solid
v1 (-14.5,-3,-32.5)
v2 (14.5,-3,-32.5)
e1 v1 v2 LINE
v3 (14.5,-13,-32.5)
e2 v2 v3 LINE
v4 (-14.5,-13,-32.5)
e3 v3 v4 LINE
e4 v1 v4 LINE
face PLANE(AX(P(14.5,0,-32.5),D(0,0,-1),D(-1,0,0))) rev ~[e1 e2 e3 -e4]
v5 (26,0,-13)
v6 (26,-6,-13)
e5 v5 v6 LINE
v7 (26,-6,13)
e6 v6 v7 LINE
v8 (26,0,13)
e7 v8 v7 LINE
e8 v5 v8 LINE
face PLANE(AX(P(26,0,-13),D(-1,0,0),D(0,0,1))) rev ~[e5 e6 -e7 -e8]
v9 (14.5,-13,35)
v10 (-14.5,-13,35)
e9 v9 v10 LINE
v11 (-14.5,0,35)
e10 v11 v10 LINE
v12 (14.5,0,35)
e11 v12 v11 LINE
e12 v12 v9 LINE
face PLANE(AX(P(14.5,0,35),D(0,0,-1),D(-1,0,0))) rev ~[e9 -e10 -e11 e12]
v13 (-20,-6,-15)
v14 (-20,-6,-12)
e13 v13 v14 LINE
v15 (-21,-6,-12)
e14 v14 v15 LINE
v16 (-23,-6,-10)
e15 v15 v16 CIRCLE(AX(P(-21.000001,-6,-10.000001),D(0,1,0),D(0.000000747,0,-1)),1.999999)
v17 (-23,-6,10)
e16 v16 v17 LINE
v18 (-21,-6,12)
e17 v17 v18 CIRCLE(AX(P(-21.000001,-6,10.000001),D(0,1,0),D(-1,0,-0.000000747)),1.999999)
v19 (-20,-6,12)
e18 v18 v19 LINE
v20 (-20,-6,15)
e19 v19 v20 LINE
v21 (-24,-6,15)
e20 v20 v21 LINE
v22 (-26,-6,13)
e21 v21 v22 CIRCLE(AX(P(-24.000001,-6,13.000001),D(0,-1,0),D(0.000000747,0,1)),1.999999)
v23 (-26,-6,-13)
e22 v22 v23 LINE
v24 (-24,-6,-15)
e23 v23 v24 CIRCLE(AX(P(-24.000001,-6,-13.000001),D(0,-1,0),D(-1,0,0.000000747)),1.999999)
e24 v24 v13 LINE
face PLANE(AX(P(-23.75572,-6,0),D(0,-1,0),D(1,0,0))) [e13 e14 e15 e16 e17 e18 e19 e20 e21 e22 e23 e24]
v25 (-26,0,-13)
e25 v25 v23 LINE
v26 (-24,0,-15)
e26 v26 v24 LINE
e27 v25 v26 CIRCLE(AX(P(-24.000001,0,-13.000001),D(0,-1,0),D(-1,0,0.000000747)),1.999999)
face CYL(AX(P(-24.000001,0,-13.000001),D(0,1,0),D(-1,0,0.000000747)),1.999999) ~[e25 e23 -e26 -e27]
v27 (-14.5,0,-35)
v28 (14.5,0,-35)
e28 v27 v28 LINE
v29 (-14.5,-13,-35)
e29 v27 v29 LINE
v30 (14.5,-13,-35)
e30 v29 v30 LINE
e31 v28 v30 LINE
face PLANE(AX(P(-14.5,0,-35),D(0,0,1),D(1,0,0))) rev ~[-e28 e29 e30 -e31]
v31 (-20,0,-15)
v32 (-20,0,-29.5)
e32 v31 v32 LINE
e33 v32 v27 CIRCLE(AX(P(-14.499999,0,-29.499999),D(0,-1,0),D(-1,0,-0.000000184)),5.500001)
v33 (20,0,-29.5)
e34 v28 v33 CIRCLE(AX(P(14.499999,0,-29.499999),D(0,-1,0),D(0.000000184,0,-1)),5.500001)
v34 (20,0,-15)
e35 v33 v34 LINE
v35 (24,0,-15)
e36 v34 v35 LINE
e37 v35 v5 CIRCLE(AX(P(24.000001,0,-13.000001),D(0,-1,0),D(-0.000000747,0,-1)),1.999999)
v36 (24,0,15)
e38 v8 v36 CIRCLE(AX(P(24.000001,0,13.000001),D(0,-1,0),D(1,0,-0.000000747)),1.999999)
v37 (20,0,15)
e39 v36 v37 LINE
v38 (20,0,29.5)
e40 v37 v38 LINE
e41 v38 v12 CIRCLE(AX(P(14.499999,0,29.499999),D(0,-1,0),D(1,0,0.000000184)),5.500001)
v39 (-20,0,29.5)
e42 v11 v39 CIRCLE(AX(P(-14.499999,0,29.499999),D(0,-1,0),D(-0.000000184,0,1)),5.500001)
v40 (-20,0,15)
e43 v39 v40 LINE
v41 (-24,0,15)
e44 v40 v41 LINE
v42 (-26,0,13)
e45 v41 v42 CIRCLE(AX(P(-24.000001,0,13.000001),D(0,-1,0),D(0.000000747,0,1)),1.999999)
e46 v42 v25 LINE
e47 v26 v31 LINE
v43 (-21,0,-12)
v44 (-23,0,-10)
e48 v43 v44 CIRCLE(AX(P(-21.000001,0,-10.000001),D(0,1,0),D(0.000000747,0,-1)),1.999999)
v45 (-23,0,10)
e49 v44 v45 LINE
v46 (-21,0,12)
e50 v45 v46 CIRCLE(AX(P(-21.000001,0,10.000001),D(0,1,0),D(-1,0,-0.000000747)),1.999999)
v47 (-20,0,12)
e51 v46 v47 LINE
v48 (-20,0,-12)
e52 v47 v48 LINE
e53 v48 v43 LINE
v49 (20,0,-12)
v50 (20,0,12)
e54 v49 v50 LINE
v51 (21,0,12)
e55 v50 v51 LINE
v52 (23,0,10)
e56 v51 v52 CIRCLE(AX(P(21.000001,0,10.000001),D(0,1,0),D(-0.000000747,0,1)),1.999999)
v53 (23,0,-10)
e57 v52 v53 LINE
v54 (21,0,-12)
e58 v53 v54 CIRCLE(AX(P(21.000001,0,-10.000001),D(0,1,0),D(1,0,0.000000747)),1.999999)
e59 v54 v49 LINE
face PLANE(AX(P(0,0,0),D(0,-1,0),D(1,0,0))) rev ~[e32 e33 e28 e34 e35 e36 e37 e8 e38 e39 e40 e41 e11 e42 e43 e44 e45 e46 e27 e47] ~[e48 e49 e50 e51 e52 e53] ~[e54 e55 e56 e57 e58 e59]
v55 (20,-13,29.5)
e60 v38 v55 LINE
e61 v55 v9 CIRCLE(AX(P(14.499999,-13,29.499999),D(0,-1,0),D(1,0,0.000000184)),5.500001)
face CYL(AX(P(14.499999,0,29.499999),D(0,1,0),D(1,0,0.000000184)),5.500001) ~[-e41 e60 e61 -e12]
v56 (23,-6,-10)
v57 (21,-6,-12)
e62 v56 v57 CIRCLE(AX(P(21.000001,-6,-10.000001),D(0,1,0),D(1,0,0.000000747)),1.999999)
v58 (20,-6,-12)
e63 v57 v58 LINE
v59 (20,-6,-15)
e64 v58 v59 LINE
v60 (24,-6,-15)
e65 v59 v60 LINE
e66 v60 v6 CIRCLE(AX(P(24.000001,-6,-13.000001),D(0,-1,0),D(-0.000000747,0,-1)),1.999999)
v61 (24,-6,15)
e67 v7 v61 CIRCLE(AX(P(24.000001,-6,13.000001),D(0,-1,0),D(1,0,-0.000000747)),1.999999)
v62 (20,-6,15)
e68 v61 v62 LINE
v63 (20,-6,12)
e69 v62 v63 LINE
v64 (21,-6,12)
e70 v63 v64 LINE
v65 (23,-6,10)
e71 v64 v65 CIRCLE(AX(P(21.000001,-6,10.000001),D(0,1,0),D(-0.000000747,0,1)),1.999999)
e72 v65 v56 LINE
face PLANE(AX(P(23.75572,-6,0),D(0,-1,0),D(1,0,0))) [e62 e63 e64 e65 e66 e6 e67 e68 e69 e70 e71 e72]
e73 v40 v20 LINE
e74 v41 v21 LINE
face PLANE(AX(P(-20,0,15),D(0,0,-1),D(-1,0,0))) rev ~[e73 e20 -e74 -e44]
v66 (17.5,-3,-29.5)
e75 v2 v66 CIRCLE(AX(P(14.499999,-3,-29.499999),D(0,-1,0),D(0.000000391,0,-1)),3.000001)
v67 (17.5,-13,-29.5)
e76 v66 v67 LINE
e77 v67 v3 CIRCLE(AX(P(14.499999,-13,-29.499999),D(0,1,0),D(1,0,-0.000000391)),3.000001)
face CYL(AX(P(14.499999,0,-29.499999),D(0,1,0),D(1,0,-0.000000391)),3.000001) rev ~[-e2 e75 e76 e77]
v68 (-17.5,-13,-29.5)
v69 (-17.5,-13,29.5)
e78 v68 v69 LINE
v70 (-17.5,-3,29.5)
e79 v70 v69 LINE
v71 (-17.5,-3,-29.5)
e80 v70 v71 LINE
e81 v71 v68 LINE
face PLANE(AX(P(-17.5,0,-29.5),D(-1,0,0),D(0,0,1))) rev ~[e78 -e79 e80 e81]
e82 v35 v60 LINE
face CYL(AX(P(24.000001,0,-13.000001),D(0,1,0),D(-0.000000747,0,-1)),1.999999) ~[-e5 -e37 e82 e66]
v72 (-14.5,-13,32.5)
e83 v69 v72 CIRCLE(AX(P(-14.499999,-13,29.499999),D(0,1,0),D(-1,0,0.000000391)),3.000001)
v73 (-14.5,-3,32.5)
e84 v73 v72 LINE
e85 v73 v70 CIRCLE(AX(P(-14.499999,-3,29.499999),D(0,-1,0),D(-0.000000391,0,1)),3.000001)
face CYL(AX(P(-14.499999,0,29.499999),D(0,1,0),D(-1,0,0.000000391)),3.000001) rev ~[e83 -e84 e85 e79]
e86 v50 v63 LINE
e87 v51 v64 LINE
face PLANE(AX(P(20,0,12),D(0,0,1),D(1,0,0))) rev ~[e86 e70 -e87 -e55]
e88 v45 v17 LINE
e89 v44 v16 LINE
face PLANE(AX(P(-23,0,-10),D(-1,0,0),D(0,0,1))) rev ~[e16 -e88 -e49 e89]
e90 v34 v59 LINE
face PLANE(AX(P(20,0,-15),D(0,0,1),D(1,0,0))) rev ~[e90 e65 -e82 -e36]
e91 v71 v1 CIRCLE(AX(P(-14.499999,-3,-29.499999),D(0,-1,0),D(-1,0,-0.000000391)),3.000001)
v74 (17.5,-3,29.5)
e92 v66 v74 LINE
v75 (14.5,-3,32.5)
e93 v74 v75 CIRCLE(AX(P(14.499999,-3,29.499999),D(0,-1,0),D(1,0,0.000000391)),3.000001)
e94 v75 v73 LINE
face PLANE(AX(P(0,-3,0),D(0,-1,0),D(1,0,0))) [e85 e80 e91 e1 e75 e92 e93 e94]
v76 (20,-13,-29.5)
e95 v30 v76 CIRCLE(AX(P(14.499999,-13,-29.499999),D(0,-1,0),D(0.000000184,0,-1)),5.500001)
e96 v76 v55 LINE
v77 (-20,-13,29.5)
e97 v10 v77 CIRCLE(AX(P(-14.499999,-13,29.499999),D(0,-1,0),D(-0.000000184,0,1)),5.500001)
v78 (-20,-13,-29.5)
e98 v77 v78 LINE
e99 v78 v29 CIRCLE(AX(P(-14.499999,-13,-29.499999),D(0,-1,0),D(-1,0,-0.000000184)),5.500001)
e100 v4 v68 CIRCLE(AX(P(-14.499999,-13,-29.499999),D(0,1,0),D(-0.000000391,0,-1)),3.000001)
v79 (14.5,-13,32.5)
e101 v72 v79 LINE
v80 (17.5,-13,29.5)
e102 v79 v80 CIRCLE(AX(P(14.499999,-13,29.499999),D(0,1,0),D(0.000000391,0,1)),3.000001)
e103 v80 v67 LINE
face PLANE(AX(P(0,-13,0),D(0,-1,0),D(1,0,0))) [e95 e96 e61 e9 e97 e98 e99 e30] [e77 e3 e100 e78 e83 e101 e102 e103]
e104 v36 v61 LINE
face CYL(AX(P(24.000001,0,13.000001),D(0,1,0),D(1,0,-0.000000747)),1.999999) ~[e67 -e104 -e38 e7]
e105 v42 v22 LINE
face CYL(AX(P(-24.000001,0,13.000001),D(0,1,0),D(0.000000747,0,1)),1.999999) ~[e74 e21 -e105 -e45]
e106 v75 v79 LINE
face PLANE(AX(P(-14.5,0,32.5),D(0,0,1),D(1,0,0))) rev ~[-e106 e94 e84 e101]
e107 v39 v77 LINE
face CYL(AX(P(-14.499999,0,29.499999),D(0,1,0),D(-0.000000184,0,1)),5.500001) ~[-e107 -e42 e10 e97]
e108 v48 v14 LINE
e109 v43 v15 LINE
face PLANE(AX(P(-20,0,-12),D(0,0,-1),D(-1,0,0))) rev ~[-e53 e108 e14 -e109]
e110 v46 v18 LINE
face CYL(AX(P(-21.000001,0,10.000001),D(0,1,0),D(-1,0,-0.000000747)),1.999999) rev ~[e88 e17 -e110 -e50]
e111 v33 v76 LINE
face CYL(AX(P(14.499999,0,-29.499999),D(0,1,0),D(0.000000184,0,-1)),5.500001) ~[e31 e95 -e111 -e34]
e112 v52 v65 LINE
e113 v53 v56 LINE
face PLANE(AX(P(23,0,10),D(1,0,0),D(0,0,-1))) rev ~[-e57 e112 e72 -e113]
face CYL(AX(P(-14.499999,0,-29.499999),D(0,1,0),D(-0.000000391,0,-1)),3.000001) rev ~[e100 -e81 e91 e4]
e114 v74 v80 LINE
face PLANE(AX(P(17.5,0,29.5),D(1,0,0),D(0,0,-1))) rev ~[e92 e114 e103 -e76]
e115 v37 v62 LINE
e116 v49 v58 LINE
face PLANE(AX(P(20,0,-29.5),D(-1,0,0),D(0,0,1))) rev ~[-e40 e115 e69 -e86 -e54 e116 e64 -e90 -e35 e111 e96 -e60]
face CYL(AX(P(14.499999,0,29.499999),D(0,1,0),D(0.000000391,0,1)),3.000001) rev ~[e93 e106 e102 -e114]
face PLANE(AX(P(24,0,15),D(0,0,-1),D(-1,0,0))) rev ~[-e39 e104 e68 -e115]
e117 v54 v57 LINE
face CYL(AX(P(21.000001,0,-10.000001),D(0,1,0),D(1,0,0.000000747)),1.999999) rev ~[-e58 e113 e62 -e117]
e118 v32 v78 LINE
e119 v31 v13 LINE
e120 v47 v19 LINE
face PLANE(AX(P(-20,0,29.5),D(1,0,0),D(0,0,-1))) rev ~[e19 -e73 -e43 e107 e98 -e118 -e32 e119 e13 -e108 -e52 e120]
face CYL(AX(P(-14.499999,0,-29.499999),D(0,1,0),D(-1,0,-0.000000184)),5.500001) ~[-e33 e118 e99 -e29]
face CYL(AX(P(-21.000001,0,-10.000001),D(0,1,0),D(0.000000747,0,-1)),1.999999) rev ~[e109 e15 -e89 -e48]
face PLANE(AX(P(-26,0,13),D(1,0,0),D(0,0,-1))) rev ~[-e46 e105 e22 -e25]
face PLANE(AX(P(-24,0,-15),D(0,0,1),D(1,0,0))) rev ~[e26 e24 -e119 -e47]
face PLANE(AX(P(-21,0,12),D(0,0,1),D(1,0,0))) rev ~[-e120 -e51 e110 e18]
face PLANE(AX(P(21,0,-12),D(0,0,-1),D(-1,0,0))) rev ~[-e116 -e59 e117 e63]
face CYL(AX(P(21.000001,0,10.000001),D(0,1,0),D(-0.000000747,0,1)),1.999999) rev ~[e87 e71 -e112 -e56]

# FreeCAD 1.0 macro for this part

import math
import FreeCAD as App
import Part
import Sketcher

V = App.Vector
Q = App.Units.Quantity

doc = App.newDocument("Part")
params = doc.addObject("Spreadsheet::Sheet", "Params")
for row, (alias, value) in enumerate([
    ("sketch1_radius", "3.000001 mm"),
    ("sketch1_width", "29 mm"),
    ("sketch1_height", "59 mm"),
    ("pad1_length", "3 mm"),
    ("sketch2_radius", "3.000001 mm"),
    ("sketch2_radius2", "5.500001 mm"),
    ("sketch2_width", "29 mm"),
    ("sketch2_height", "59 mm"),
    ("pad2_length", "13 mm"),
    ("sketch3_radius", "1.999999 mm"),
    ("sketch3_width", "4 mm"),
    ("sketch3_width2", "1 mm"),
    ("sketch3_height", "3 mm"),
    ("sketch3_height2", "26 mm"),
    ("pad3_length", "6 mm"),
], start=1):
    params.set(f"A{row}", alias)
    params.set(f"B{row}", "=" + value)
    params.setAlias(f"B{row}", alias)

body = doc.addObject("PartDesign::Body", "Body")

sketch1 = body.newObject("Sketcher::SketchObject", "Sketch")
sketch1.AttachmentSupport = (doc.getObject("XZ_Plane"), [""])
sketch1.MapMode = "FlatFace"
sketch1.addGeometry([
    Part.LineSegment(V(-14.5, -32.5, 0), V(14.5, -32.5, 0)),
    Part.ArcOfCircle(Part.Circle(V(14.499999, -29.499999, 0), V(0, 0, 1), 3.000001), math.radians(-89.999978), math.radians(-0.000022)),
    Part.LineSegment(V(17.5, -29.5, 0), V(17.5, 29.5, 0)),
    Part.ArcOfCircle(Part.Circle(V(14.499999, 29.499999, 0), V(0, 0, 1), 3.000001), math.radians(0.000022), math.radians(89.999978)),
    Part.LineSegment(V(14.5, 32.5, 0), V(-14.5, 32.5, 0)),
    Part.ArcOfCircle(Part.Circle(V(-14.499999, 29.499999, 0), V(0, 0, 1), 3.000001), math.radians(90.000022), math.radians(179.999978)),
    Part.LineSegment(V(-17.5, 29.5, 0), V(-17.5, -29.5, 0)),
    Part.ArcOfCircle(Part.Circle(V(-14.499999, -29.499999, 0), V(0, 0, 1), 3.000001), math.radians(-179.999978), math.radians(-90.000022)),
], False)
sketch1.addConstraint([
    Sketcher.Constraint("Tangent", 0, 2, 1, 1),
    Sketcher.Constraint("Tangent", 1, 2, 2, 1),
    Sketcher.Constraint("Tangent", 2, 2, 3, 1),
    Sketcher.Constraint("Tangent", 3, 2, 4, 1),
    Sketcher.Constraint("Tangent", 4, 2, 5, 1),
    Sketcher.Constraint("Tangent", 5, 2, 6, 1),
    Sketcher.Constraint("Tangent", 6, 2, 7, 1),
    Sketcher.Constraint("Tangent", 7, 2, 0, 1),
    Sketcher.Constraint("Horizontal", 0),
    Sketcher.Constraint("Vertical", 2),
    Sketcher.Constraint("Horizontal", 4),
    Sketcher.Constraint("Vertical", 6),
    Sketcher.Constraint("Equal", 1, 3),
    Sketcher.Constraint("Equal", 3, 5),
    Sketcher.Constraint("Equal", 5, 7),
    Sketcher.Constraint("Symmetric", 1, 3, 5, 3, -1, 1),
    Sketcher.Constraint("Radius", 1, Q("3.000001 mm")),
    Sketcher.Constraint("DistanceX", 0, 1, 0, 2, Q("29 mm")),
    Sketcher.Constraint("DistanceY", 2, 1, 2, 2, Q("59 mm")),
])
sketch1.setExpression("Constraints[16]", "Params.sketch1_radius")
sketch1.setExpression("Constraints[17]", "Params.sketch1_width")
sketch1.setExpression("Constraints[18]", "Params.sketch1_height")
pad1 = body.newObject("PartDesign::Pad", "Pad")
pad1.Profile = sketch1
pad1.setExpression("Length", "Params.pad1_length")

sketch2 = body.newObject("Sketcher::SketchObject", "Sketch001")
sketch2.AttachmentSupport = (doc.getObject("XZ_Plane"), [""])
sketch2.MapMode = "FlatFace"
sketch2.addGeometry([
    Part.LineSegment(V(14.5, 35, 0), V(-14.5, 35, 0)),
    Part.ArcOfCircle(Part.Circle(V(-14.499999, 29.499999, 0), V(0, 0, 1), 5.500001), math.radians(90.000011), math.radians(179.999989)),
    Part.LineSegment(V(-20, 29.5, 0), V(-20, -29.5, 0)),
    Part.ArcOfCircle(Part.Circle(V(-14.499999, -29.499999, 0), V(0, 0, 1), 5.500001), math.radians(-179.999989), math.radians(-90.000011)),
    Part.LineSegment(V(-14.5, -35, 0), V(14.5, -35, 0)),
    Part.ArcOfCircle(Part.Circle(V(14.499999, -29.499999, 0), V(0, 0, 1), 5.500001), math.radians(-89.999989), math.radians(-0.000011)),
    Part.LineSegment(V(20, -29.5, 0), V(20, 29.5, 0)),
    Part.ArcOfCircle(Part.Circle(V(14.499999, 29.499999, 0), V(0, 0, 1), 5.500001), math.radians(0.000011), math.radians(89.999989)),
    Part.LineSegment(V(17.5, 29.5, 0), V(17.5, -29.5, 0)),
    Part.ArcOfCircle(Part.Circle(V(14.499999, -29.499999, 0), V(0, 0, 1), 3.000001), math.radians(-89.999978), math.radians(-0.000022)),
    Part.LineSegment(V(14.5, -32.5, 0), V(-14.5, -32.5, 0)),
    Part.ArcOfCircle(Part.Circle(V(-14.499999, -29.499999, 0), V(0, 0, 1), 3.000001), math.radians(-179.999978), math.radians(-90.000022)),
    Part.LineSegment(V(-17.5, -29.5, 0), V(-17.5, 29.5, 0)),
    Part.ArcOfCircle(Part.Circle(V(-14.499999, 29.499999, 0), V(0, 0, 1), 3.000001), math.radians(90.000022), math.radians(179.999978)),
    Part.LineSegment(V(-14.5, 32.5, 0), V(14.5, 32.5, 0)),
    Part.ArcOfCircle(Part.Circle(V(14.499999, 29.499999, 0), V(0, 0, 1), 3.000001), math.radians(0.000022), math.radians(89.999978)),
], False)
sketch2.addConstraint([
    Sketcher.Constraint("Tangent", 0, 2, 1, 1),
    Sketcher.Constraint("Tangent", 1, 2, 2, 1),
    Sketcher.Constraint("Tangent", 2, 2, 3, 1),
    Sketcher.Constraint("Tangent", 3, 2, 4, 1),
    Sketcher.Constraint("Tangent", 4, 2, 5, 1),
    Sketcher.Constraint("Tangent", 5, 2, 6, 1),
    Sketcher.Constraint("Tangent", 6, 2, 7, 1),
    Sketcher.Constraint("Tangent", 7, 2, 0, 1),
    Sketcher.Constraint("Tangent", 8, 2, 9, 2),
    Sketcher.Constraint("Tangent", 9, 1, 10, 1),
    Sketcher.Constraint("Tangent", 10, 2, 11, 2),
    Sketcher.Constraint("Tangent", 11, 1, 12, 1),
    Sketcher.Constraint("Tangent", 12, 2, 13, 2),
    Sketcher.Constraint("Tangent", 13, 1, 14, 1),
    Sketcher.Constraint("Tangent", 14, 2, 15, 2),
    Sketcher.Constraint("Tangent", 15, 1, 8, 1),
    Sketcher.Constraint("Horizontal", 0),
    Sketcher.Constraint("Vertical", 2),
    Sketcher.Constraint("Horizontal", 4),
    Sketcher.Constraint("Vertical", 6),
    Sketcher.Constraint("Vertical", 8),
    Sketcher.Constraint("Horizontal", 10),
    Sketcher.Constraint("Vertical", 12),
    Sketcher.Constraint("Horizontal", 14),
    Sketcher.Constraint("Coincident", 9, 3, 5, 3),
    Sketcher.Constraint("Coincident", 11, 3, 3, 3),
    Sketcher.Constraint("Coincident", 13, 3, 1, 3),
    Sketcher.Constraint("Equal", 1, 3),
    Sketcher.Constraint("Equal", 3, 5),
    Sketcher.Constraint("Equal", 5, 7),
    Sketcher.Constraint("Equal", 13, 15),
    Sketcher.Constraint("Symmetric", 1, 3, 5, 3, -1, 1),
    Sketcher.Constraint("Radius", 9, Q("3.000001 mm")),
    Sketcher.Constraint("Radius", 1, Q("5.500001 mm")),
    Sketcher.Constraint("DistanceX", 0, 2, 0, 1, Q("29 mm")),
    Sketcher.Constraint("DistanceY", 2, 2, 2, 1, Q("59 mm")),
])
sketch2.setExpression("Constraints[32]", "Params.sketch2_radius")
sketch2.setExpression("Constraints[33]", "Params.sketch2_radius2")
sketch2.setExpression("Constraints[34]", "Params.sketch2_width")
sketch2.setExpression("Constraints[35]", "Params.sketch2_height")
pad2 = body.newObject("PartDesign::Pad", "Pad001")
pad2.Profile = sketch2
pad2.setExpression("Length", "Params.pad2_length")

sketch3 = body.newObject("Sketcher::SketchObject", "Sketch002")
sketch3.AttachmentSupport = (doc.getObject("XZ_Plane"), [""])
sketch3.MapMode = "FlatFace"
sketch3.addGeometry([
    Part.LineSegment(V(-20, 12, 0), V(-20, 15, 0)),
    Part.LineSegment(V(-20, 15, 0), V(-24, 15, 0)),
    Part.ArcOfCircle(Part.Circle(V(-24.000001, 13.000001, 0), V(0, 0, 1), 1.999999), math.radians(89.999957), math.radians(180.000043)),
    Part.LineSegment(V(-26, 13, 0), V(-26, -13, 0)),
    Part.ArcOfCircle(Part.Circle(V(-24.000001, -13.000001, 0), V(0, 0, 1), 1.999999), math.radians(179.999957), math.radians(270.000043)),
    Part.LineSegment(V(-24, -15, 0), V(-20, -15, 0)),
    Part.LineSegment(V(-20, -15, 0), V(-20, -12, 0)),
    Part.LineSegment(V(-20, -12, 0), V(-21, -12, 0)),
    Part.ArcOfCircle(Part.Circle(V(-21.000001, -10.000001, 0), V(0, 0, 1), 1.999999), math.radians(179.999957), math.radians(270.000043)),
    Part.LineSegment(V(-23, -10, 0), V(-23, 10, 0)),
    Part.ArcOfCircle(Part.Circle(V(-21.000001, 10.000001, 0), V(0, 0, 1), 1.999999), math.radians(89.999957), math.radians(180.000043)),
    Part.LineSegment(V(-21, 12, 0), V(-20, 12, 0)),
    Part.LineSegment(V(24, 15, 0), V(20, 15, 0)),
    Part.LineSegment(V(20, 15, 0), V(20, 12, 0)),
    Part.LineSegment(V(20, 12, 0), V(21, 12, 0)),
    Part.ArcOfCircle(Part.Circle(V(21.000001, 10.000001, 0), V(0, 0, 1), 1.999999), math.radians(-0.000043), math.radians(90.000043)),
    Part.LineSegment(V(23, 10, 0), V(23, -10, 0)),
    Part.ArcOfCircle(Part.Circle(V(21.000001, -10.000001, 0), V(0, 0, 1), 1.999999), math.radians(-90.000043), math.radians(0.000043)),
    Part.LineSegment(V(21, -12, 0), V(20, -12, 0)),
    Part.LineSegment(V(20, -12, 0), V(20, -15, 0)),
    Part.LineSegment(V(20, -15, 0), V(24, -15, 0)),
    Part.ArcOfCircle(Part.Circle(V(24.000001, -13.000001, 0), V(0, 0, 1), 1.999999), math.radians(-90.000043), math.radians(0.000043)),
    Part.LineSegment(V(26, -13, 0), V(26, 13, 0)),
    Part.ArcOfCircle(Part.Circle(V(24.000001, 13.000001, 0), V(0, 0, 1), 1.999999), math.radians(-0.000043), math.radians(90.000043)),
], False)
sketch3.addConstraint([
    Sketcher.Constraint("Coincident", 0, 2, 1, 1),
    Sketcher.Constraint("Tangent", 1, 2, 2, 1),
    Sketcher.Constraint("Tangent", 2, 2, 3, 1),
    Sketcher.Constraint("Tangent", 3, 2, 4, 1),
    Sketcher.Constraint("Tangent", 4, 2, 5, 1),
    Sketcher.Constraint("Coincident", 5, 2, 6, 1),
    Sketcher.Constraint("Coincident", 6, 2, 7, 1),
    Sketcher.Constraint("Tangent", 7, 2, 8, 2),
    Sketcher.Constraint("Tangent", 8, 1, 9, 1),
    Sketcher.Constraint("Tangent", 9, 2, 10, 2),
    Sketcher.Constraint("Tangent", 10, 1, 11, 1),
    Sketcher.Constraint("Coincident", 11, 2, 0, 1),
    Sketcher.Constraint("Coincident", 12, 2, 13, 1),
    Sketcher.Constraint("Coincident", 13, 2, 14, 1),
    Sketcher.Constraint("Tangent", 14, 2, 15, 2),
    Sketcher.Constraint("Tangent", 15, 1, 16, 1),
    Sketcher.Constraint("Tangent", 16, 2, 17, 2),
    Sketcher.Constraint("Tangent", 17, 1, 18, 1),
    Sketcher.Constraint("Coincident", 18, 2, 19, 1),
    Sketcher.Constraint("Coincident", 19, 2, 20, 1),
    Sketcher.Constraint("Tangent", 20, 2, 21, 1),
    Sketcher.Constraint("Tangent", 21, 2, 22, 1),
    Sketcher.Constraint("Tangent", 22, 2, 23, 1),
    Sketcher.Constraint("Tangent", 23, 2, 12, 1),
    Sketcher.Constraint("Vertical", 0),
    Sketcher.Constraint("Horizontal", 1),
    Sketcher.Constraint("Vertical", 3),
    Sketcher.Constraint("Horizontal", 5),
    Sketcher.Constraint("Vertical", 6),
    Sketcher.Constraint("Horizontal", 7),
    Sketcher.Constraint("Vertical", 9),
    Sketcher.Constraint("Horizontal", 11),
    Sketcher.Constraint("Horizontal", 12),
    Sketcher.Constraint("Vertical", 13),
    Sketcher.Constraint("Horizontal", 14),
    Sketcher.Constraint("Vertical", 16),
    Sketcher.Constraint("Horizontal", 18),
    Sketcher.Constraint("Vertical", 19),
    Sketcher.Constraint("Horizontal", 20),
    Sketcher.Constraint("Vertical", 22),
    Sketcher.Constraint("Equal", 2, 4),
    Sketcher.Constraint("Equal", 4, 8),
    Sketcher.Constraint("Equal", 8, 10),
    Sketcher.Constraint("Equal", 10, 15),
    Sketcher.Constraint("Equal", 15, 17),
    Sketcher.Constraint("Equal", 17, 21),
    Sketcher.Constraint("Equal", 21, 23),
    Sketcher.Constraint("Symmetric", 8, 3, 15, 3, -1, 1),
    Sketcher.Constraint("Symmetric", 2, 3, 21, 3, -1, 1),
    Sketcher.Constraint("Symmetric", 5, 2, 12, 2, -1, 1),
    Sketcher.Constraint("Symmetric", 11, 2, 18, 2, -1, 1),
    Sketcher.Constraint("Symmetric", 0, 2, 12, 2, -2),
    Sketcher.Constraint("Horizontal", 10, 3, 15, 3),
    Sketcher.Constraint("Radius", 2, Q("1.999999 mm")),
    Sketcher.Constraint("DistanceX", 1, 2, 1, 1, Q("4 mm")),
    Sketcher.Constraint("DistanceX", 7, 2, 7, 1, Q("1 mm")),
    Sketcher.Constraint("DistanceY", 0, 1, 0, 2, Q("3 mm")),
    Sketcher.Constraint("DistanceY", 3, 2, 3, 1, Q("26 mm")),
    Sketcher.Constraint("DistanceX", 2, 3, -1, 1, Q("24.000001 mm")),
])
sketch3.setExpression("Constraints[53]", "Params.sketch3_radius")
sketch3.setExpression("Constraints[54]", "Params.sketch3_width")
sketch3.setExpression("Constraints[55]", "Params.sketch3_width2")
sketch3.setExpression("Constraints[56]", "Params.sketch3_height")
sketch3.setExpression("Constraints[57]", "Params.sketch3_height2")
pad3 = body.newObject("PartDesign::Pad", "Pad002")
pad3.Profile = sketch3
pad3.setExpression("Length", "Params.pad3_length")

doc.recompute()
